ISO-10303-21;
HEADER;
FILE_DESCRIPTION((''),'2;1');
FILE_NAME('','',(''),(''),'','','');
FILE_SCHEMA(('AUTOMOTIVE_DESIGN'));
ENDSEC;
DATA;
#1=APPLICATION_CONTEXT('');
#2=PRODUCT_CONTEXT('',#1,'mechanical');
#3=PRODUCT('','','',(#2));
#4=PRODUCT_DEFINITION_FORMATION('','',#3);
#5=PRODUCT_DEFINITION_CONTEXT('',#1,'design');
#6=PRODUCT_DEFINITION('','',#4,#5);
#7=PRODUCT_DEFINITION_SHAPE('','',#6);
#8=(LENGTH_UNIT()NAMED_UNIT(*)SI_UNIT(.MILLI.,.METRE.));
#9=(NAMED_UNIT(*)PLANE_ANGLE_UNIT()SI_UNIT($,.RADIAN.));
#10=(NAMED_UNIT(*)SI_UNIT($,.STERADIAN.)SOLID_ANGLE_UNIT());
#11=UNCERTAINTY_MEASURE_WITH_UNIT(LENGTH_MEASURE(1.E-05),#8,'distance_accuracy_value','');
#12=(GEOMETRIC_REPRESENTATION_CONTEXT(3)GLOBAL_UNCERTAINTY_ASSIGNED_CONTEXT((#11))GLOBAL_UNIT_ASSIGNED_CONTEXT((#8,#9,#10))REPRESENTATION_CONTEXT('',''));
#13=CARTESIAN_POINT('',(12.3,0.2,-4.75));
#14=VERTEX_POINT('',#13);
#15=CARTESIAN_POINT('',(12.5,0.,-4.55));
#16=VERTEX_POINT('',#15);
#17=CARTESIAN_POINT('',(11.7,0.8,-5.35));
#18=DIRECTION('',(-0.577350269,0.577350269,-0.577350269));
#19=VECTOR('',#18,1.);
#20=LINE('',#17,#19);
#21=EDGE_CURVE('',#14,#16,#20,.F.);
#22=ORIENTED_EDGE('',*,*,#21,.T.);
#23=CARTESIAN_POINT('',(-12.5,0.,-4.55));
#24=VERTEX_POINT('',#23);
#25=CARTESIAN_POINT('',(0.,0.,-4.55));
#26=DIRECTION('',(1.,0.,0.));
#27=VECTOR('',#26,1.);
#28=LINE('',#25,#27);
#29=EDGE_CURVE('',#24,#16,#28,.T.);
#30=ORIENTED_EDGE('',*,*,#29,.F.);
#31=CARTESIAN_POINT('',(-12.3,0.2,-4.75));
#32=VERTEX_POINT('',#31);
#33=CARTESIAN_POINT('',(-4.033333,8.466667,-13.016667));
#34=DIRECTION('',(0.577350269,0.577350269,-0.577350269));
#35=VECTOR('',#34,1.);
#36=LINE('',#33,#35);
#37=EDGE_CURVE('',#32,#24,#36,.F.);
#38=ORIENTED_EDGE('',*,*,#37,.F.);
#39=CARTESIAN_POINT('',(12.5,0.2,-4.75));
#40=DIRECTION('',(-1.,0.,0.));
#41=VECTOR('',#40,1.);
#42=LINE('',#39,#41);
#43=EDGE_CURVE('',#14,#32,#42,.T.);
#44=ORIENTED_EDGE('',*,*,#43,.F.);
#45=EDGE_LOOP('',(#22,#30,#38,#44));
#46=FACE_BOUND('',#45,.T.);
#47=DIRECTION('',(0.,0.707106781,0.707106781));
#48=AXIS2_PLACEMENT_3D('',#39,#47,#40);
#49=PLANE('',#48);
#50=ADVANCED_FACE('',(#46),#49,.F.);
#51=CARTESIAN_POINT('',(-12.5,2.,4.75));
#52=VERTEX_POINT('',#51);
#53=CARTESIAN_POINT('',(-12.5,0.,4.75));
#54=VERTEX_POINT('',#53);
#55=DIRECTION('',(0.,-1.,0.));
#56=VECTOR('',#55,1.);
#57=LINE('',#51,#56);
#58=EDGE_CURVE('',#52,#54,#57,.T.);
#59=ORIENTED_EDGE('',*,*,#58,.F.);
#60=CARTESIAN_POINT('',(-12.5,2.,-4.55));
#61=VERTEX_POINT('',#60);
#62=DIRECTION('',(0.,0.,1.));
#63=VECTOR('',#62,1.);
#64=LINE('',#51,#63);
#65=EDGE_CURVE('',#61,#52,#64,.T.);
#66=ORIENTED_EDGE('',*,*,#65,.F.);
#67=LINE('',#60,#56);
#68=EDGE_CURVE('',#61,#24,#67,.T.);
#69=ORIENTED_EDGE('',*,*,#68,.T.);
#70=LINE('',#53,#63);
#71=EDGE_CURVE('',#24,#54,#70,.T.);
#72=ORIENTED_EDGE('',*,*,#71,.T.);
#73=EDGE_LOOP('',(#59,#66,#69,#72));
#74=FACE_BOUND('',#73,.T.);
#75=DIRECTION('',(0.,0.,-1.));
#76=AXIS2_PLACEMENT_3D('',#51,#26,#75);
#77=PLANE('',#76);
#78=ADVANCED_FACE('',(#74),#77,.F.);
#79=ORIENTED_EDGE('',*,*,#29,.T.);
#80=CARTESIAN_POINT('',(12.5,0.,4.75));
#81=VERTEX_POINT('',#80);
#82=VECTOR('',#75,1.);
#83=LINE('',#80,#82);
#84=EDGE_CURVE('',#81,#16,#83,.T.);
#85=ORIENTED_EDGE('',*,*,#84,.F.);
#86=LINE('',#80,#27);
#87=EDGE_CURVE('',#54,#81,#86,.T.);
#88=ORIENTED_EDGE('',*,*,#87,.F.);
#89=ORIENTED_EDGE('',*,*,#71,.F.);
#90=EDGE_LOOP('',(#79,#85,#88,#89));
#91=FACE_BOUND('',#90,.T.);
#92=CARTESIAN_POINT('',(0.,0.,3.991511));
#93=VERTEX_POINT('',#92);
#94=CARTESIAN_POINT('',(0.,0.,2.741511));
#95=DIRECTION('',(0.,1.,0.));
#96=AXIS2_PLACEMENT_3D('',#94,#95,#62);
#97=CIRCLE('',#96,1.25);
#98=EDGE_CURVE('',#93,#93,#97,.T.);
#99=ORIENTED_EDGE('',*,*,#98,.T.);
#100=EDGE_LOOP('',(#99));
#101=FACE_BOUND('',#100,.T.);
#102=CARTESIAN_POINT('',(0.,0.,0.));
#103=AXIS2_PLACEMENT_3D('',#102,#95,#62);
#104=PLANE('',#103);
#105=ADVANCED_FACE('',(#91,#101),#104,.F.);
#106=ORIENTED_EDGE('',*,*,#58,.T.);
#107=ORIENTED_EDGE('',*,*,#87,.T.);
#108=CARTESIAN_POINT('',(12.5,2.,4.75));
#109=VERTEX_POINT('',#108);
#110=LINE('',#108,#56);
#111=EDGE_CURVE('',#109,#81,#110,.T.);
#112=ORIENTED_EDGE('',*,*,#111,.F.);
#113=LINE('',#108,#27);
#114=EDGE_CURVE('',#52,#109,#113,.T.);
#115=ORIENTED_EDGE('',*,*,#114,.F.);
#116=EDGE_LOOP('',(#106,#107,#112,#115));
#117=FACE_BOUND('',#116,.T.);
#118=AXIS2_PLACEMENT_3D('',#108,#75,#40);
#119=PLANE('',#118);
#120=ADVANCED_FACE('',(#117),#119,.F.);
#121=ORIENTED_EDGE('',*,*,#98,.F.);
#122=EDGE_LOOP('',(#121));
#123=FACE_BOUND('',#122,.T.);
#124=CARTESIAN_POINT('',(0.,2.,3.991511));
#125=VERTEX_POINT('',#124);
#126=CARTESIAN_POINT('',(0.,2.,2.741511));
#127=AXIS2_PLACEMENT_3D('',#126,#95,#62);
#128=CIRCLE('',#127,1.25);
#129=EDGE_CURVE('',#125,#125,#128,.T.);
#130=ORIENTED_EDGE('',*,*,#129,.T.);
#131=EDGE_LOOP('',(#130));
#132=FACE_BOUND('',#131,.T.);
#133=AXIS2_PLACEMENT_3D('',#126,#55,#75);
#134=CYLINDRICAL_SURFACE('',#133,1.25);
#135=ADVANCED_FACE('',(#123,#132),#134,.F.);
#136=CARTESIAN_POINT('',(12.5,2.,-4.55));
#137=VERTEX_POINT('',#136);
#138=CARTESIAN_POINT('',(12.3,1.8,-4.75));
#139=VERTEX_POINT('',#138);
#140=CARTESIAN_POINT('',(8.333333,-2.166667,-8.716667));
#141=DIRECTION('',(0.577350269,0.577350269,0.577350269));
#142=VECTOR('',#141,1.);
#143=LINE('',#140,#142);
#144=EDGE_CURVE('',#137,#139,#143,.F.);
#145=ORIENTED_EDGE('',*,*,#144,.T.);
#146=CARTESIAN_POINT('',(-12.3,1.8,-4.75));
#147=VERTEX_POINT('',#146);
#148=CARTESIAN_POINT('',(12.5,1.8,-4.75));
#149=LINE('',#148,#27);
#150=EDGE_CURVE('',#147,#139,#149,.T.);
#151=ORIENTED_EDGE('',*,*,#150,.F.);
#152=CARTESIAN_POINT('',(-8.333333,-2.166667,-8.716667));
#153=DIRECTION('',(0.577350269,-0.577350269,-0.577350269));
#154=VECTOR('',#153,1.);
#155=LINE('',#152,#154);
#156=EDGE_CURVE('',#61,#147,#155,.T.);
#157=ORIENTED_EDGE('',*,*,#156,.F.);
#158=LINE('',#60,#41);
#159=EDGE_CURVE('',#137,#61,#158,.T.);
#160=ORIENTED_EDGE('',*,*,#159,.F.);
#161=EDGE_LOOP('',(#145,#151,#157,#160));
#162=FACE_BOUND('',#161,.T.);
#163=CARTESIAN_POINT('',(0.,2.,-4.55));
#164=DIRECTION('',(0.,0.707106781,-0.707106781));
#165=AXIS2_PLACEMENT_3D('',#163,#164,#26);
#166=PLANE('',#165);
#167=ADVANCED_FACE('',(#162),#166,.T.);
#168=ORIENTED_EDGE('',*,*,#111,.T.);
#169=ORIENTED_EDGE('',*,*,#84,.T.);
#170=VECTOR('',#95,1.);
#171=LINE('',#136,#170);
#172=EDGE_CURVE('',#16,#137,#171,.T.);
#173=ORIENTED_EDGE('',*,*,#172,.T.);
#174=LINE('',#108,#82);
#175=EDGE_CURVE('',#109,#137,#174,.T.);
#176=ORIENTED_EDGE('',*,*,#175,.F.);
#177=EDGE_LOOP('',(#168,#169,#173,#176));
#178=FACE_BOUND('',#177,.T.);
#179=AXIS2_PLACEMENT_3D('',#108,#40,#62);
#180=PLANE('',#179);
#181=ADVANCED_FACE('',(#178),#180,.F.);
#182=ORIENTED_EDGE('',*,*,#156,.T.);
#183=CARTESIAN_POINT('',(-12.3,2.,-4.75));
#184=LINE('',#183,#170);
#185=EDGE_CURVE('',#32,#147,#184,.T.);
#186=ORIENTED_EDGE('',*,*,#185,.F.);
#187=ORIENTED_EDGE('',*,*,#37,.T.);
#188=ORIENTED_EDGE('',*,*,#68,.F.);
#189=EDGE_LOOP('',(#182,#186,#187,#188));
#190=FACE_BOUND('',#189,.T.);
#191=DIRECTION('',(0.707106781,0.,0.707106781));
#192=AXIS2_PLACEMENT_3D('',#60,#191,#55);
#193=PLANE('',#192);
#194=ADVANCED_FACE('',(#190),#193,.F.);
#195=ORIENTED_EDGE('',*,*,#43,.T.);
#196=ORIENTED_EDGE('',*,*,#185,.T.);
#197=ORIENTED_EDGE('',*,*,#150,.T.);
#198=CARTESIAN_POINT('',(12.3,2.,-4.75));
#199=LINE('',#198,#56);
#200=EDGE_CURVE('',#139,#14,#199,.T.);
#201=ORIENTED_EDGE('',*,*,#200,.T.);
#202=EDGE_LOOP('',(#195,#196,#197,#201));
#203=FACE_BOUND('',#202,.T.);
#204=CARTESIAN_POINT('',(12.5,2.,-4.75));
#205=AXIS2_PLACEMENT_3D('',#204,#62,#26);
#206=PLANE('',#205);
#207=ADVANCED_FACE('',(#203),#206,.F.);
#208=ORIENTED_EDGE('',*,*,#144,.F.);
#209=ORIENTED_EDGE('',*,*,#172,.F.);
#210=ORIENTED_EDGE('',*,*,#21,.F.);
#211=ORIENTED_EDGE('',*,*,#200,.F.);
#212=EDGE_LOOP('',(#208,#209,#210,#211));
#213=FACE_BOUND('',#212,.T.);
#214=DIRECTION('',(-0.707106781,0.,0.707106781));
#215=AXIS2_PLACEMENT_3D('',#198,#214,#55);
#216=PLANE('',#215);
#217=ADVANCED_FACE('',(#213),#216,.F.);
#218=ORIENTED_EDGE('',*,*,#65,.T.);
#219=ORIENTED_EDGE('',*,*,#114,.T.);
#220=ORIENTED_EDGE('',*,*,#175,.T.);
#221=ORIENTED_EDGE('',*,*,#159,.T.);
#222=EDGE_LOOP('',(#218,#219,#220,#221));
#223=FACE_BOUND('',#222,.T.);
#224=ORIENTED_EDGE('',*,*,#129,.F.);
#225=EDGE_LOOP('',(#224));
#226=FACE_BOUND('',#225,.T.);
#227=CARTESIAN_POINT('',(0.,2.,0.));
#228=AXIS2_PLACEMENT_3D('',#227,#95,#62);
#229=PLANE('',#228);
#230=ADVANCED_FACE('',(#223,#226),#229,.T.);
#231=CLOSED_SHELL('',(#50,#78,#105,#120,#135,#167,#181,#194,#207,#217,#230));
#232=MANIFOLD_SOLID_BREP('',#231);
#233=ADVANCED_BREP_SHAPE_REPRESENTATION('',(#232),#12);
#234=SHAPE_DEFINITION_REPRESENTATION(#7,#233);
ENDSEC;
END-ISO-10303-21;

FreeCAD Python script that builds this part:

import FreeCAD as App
import Part
import Sketcher

V = App.Vector
Q = App.Units.Quantity


def edges_at(feature, points):
    """Names of the edges that pass closest to the given points."""
    edges = feature.Shape.Edges
    near = lambda p: min(range(len(edges)), key=lambda i: edges[i].distToShape(Part.Vertex(*p))[0])
    return sorted({f"Edge{near(p) + 1}" for p in points})

doc = App.newDocument("Part")
params = doc.addObject("Spreadsheet::Sheet", "Params")
for row, (alias, value) in enumerate([
    ("sketch1_diameter", "2.5 mm"),
    ("sketch1_width", "25 mm"),
    ("sketch1_height", "9.5 mm"),
    ("pad1_length", "2 mm"),
    ("chamfer_size", "0.2 mm"),
], start=1):
    params.set(f"A{row}", alias)
    params.set(f"B{row}", "=" + value)
    params.setAlias(f"B{row}", alias)

body = doc.addObject("PartDesign::Body", "Body")

sketch1 = doc.addObject("Sketcher::SketchObject", "Sketch")
body.addObject(sketch1)
sketch1.AttachmentSupport = (doc.XZ_Plane, [""])
sketch1.MapMode = "FlatFace"
sketch1.addGeometry(Part.LineSegment(V(-12.5, -4.8, 0), V(-12.5, 4.8, 0)), False)
sketch1.addGeometry(Part.LineSegment(V(-12.5, 4.8, 0), V(12.5, 4.8, 0)), False)
sketch1.addGeometry(Part.LineSegment(V(12.5, 4.8, 0), V(12.5, -4.8, 0)), False)
sketch1.addGeometry(Part.LineSegment(V(12.5, -4.8, 0), V(-12.5, -4.8, 0)), False)
sketch1.addGeometry(Part.Circle(V(0, 2.7, 0), V(0, 0, 1), 1.2), False)
sketch1.addConstraint(Sketcher.Constraint("Coincident", 0, 2, 1, 1))
sketch1.addConstraint(Sketcher.Constraint("Coincident", 1, 2, 2, 1))
sketch1.addConstraint(Sketcher.Constraint("Coincident", 2, 2, 3, 1))
sketch1.addConstraint(Sketcher.Constraint("Coincident", 3, 2, 0, 1))
sketch1.addConstraint(Sketcher.Constraint("Vertical", 0))
sketch1.addConstraint(Sketcher.Constraint("Horizontal", 1))
sketch1.addConstraint(Sketcher.Constraint("Vertical", 2))
sketch1.addConstraint(Sketcher.Constraint("Horizontal", 3))
sketch1.addConstraint(Sketcher.Constraint("Symmetric", 0, 2, 2, 2, -1, 1))
sketch1.addConstraint(Sketcher.Constraint("PointOnObject", 4, 3, -2))
sketch1.addConstraint(Sketcher.Constraint("Diameter", 4, Q("2.5 mm")))
sketch1.addConstraint(Sketcher.Constraint("DistanceX", 1, 1, 1, 2, Q("25 mm")))
sketch1.addConstraint(Sketcher.Constraint("DistanceY", 0, 1, 0, 2, Q("9.5 mm")))
sketch1.addConstraint(Sketcher.Constraint("DistanceY", -1, 1, 4, 3, Q("2.741511 mm")))
sketch1.setExpression("Constraints[10]", "Params.sketch1_diameter")
sketch1.setExpression("Constraints[11]", "Params.sketch1_width")
sketch1.setExpression("Constraints[12]", "Params.sketch1_height")
pad1 = doc.addObject("PartDesign::Pad", "Pad")
body.addObject(pad1)
pad1.Profile = sketch1
pad1.setExpression("Length", "Params.pad1_length")
pad1.Reversed = True
doc.recompute()

chamfer = doc.addObject("PartDesign::Chamfer", "Chamfer")
body.addObject(chamfer)
chamfer.Base = (pad1, edges_at(pad1, [
    (0, 2, -4.75),
    (0, 0, -4.75),
    (-12.5, 1, -4.75),
    (12.5, 1, -4.75),
]))
chamfer.setExpression("Size", "Params.chamfer_size")

doc.recompute()
